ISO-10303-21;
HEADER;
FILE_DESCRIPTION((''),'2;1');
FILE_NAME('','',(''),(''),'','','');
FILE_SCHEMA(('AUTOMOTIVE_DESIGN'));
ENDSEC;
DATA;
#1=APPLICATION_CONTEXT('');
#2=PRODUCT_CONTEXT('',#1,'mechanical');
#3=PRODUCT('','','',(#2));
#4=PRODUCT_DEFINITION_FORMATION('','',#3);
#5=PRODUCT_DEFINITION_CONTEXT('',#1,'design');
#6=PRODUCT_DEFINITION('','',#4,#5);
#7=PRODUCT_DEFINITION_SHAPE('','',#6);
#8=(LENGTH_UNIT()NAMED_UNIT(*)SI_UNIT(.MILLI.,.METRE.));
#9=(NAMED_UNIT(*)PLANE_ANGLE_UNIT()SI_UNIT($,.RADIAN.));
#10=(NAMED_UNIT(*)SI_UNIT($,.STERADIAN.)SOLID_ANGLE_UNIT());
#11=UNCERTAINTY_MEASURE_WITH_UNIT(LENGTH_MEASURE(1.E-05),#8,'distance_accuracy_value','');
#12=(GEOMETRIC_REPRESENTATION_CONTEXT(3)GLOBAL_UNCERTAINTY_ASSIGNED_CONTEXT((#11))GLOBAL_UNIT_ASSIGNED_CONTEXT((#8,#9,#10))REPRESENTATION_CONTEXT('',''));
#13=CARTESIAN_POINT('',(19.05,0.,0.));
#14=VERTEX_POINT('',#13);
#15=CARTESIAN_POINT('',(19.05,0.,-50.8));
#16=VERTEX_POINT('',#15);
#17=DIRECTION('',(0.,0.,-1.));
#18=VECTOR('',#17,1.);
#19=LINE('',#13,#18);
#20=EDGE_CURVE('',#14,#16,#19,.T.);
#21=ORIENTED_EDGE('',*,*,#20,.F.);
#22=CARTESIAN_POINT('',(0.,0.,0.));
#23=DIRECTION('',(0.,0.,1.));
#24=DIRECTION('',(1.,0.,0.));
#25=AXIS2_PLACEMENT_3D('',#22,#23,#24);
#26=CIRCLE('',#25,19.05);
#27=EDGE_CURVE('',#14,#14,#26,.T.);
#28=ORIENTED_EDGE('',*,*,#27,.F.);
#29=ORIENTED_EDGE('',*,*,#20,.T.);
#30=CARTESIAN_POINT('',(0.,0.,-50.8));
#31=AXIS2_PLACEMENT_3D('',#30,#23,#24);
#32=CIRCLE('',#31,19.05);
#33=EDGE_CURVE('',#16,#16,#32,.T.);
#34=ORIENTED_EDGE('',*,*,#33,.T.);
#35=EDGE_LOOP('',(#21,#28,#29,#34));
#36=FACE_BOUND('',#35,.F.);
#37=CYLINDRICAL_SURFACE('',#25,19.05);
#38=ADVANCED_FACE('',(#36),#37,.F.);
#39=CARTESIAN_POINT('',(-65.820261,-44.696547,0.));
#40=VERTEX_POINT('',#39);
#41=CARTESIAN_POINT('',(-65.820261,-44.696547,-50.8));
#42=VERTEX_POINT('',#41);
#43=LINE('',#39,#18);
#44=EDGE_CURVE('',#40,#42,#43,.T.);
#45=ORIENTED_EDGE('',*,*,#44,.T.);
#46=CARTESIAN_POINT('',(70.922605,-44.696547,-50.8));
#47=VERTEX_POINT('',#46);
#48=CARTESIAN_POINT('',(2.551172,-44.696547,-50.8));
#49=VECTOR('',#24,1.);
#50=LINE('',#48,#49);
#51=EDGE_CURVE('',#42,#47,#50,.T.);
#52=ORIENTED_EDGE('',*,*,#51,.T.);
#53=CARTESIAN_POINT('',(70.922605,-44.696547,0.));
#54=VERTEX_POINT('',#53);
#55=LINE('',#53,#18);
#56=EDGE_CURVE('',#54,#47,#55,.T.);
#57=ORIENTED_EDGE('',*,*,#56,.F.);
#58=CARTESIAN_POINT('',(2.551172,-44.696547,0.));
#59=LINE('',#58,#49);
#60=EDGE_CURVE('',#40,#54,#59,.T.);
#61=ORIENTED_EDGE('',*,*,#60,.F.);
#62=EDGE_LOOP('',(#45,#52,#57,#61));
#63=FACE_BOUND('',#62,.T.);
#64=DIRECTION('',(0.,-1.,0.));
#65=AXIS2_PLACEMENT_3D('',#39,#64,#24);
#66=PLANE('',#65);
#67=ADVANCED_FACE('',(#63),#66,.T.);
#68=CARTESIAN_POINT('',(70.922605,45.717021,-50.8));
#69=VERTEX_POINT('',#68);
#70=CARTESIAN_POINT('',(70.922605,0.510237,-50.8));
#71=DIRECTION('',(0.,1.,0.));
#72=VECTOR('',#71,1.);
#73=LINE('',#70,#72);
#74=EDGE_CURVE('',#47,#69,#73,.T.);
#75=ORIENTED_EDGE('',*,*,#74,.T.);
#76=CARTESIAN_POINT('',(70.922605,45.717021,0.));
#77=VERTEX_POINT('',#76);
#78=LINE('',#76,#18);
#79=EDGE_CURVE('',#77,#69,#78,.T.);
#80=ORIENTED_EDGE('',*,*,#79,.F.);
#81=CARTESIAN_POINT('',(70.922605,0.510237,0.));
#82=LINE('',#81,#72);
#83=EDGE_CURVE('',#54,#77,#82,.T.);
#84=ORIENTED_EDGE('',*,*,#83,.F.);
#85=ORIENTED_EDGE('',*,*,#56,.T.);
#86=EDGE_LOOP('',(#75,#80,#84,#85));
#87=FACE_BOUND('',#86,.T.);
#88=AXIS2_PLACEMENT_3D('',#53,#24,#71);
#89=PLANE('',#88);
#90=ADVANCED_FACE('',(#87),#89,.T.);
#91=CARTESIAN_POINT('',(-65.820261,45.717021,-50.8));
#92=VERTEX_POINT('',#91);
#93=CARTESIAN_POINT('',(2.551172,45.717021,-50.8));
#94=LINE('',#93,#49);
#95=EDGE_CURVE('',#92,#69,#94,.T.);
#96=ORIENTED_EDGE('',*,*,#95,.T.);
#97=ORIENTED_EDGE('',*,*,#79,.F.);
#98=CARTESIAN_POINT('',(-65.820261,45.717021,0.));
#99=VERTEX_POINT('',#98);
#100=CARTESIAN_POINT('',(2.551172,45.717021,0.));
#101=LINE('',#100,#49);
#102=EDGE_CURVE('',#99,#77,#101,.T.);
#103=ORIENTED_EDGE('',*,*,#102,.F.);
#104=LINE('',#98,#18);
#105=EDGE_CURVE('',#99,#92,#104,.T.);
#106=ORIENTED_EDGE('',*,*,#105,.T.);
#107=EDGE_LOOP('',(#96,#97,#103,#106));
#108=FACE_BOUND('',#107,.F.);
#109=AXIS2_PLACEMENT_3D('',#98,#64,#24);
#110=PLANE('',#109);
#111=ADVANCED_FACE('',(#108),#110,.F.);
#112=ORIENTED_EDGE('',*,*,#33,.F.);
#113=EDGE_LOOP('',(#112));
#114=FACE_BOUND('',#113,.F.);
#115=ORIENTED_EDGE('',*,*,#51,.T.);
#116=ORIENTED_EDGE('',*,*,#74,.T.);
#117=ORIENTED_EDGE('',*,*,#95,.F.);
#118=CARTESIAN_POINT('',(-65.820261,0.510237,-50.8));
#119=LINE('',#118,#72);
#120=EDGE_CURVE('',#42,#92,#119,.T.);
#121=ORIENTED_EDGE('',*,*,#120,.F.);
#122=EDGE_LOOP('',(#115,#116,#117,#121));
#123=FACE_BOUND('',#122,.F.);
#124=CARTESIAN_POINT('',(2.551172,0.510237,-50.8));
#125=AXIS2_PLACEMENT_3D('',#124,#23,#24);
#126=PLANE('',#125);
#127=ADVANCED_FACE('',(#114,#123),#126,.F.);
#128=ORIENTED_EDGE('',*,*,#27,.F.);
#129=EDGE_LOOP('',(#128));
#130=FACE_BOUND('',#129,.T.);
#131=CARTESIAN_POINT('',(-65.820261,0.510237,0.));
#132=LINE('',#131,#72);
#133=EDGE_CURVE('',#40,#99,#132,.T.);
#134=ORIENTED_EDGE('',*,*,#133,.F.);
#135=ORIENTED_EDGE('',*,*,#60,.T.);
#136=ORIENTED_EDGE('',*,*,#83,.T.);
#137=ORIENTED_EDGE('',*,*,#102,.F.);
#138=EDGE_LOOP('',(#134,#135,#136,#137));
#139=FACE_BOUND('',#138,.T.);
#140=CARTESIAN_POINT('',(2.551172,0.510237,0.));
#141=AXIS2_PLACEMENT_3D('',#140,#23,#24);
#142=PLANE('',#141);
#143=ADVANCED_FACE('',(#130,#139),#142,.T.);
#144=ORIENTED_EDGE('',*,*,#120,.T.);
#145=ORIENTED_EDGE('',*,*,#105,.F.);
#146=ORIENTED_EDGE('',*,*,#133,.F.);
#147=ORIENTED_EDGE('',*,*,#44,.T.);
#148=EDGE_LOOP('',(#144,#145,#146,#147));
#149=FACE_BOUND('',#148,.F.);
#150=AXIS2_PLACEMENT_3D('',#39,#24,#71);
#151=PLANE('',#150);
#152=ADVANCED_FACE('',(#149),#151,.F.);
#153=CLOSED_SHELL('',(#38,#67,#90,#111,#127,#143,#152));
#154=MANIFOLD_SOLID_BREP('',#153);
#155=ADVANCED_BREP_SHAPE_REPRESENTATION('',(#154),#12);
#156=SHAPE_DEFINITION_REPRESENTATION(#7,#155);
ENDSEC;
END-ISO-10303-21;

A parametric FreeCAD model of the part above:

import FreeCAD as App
import Part
import Sketcher

V = App.Vector
Q = App.Units.Quantity


def add_polygon(sketch, points):
    """Adds a closed chain of lines whose ends are joined by coincident constraints."""
    first, n = sketch.GeometryCount, len(points)
    for a, b in zip(points, points[1:] + points[:1]):
        sketch.addGeometry(Part.LineSegment(App.Vector(*a, 0), App.Vector(*b, 0)), False)
    for i in range(n):
        sketch.addConstraint(Sketcher.Constraint("Coincident", first + i, 2, first + (i + 1) % n, 1))

doc = App.newDocument("Part")
body = doc.addObject("PartDesign::Body", "Body")

# Sketch on XY plane
sketch1 = body.newObject("Sketcher::SketchObject", "Sketch")
sketch1.AttachmentSupport = (doc.getObject("XY_Plane"), [""])
sketch1.MapMode = "FlatFace"
add_polygon(sketch1, [(-65.820261, 45.717021), (-65.820261, -44.696547), (70.922605, -44.696547), (70.922605, 45.717021)])  # lines 0-3
sketch1.addGeometry(Part.Circle(V(0, 0, 0), V(0, 0, 1), 19.05), False)  # 4
sketch1.addConstraint([
    Sketcher.Constraint("Vertical", 0),
    Sketcher.Constraint("Horizontal", 1),
    Sketcher.Constraint("Vertical", 2),
    Sketcher.Constraint("Horizontal", 3),
    Sketcher.Constraint("Coincident", 4, 3, -1, 1),
    Sketcher.Constraint("Diameter", 4, Q("1.5 in")),
    Sketcher.Constraint("DistanceX", 1, 1, 1, 2, 136.742865),
    Sketcher.Constraint("DistanceY", 0, 2, 0, 1, 90.413568),
    Sketcher.Constraint("DistanceX", 0, 2, -1, 1, 65.820261),
    Sketcher.Constraint("DistanceY", -1, 1, 2, 2, 45.717021),
])
pad1 = body.newObject("PartDesign::Pad", "Pad")
pad1.Profile = sketch1
pad1.Length = Q("2 in")
pad1.Reversed = True

doc.recompute()
